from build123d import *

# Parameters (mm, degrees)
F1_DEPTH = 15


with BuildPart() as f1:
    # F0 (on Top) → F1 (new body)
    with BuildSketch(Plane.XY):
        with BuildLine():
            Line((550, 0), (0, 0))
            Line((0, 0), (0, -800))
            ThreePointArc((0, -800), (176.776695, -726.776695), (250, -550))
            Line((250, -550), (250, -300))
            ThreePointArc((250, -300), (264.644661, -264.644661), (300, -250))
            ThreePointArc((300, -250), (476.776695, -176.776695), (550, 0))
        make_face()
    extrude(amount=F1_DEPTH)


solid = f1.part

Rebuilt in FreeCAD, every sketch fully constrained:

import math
import FreeCAD as App
import Part
import Sketcher

doc = App.newDocument("Part")
body = doc.addObject("PartDesign::Body", "Body")

sketch1 = body.newObject("Sketcher::SketchObject", "Sketch")
sketch1.AttachmentSupport = (doc.getObject("XY_Plane"), [""])
sketch1.MapMode = "FlatFace"
sketch1.addGeometry([
    Part.LineSegment(App.Vector(550, 0, 0), App.Vector(0, 0, 0)),
    Part.LineSegment(App.Vector(0, 0, 0), App.Vector(0, -800, 0)),
    Part.ArcOfCircle(Part.Circle(App.Vector(0, -550, 0), App.Vector(0, 0, 1), 250), math.radians(-90), math.radians(0)),
    Part.LineSegment(App.Vector(250, -550, 0), App.Vector(250, -300, 0)),
    Part.ArcOfCircle(Part.Circle(App.Vector(300, -300, 0), App.Vector(0, 0, 1), 50), math.radians(90), math.radians(180)),
    Part.ArcOfCircle(Part.Circle(App.Vector(300, 0, 0), App.Vector(0, 0, 1), 250), math.radians(-90), math.radians(0)),
], False)
sketch1.addConstraint([
    Sketcher.Constraint("Coincident", 0, 2, 1, 1),
    Sketcher.Constraint("Coincident", 1, 2, 2, 1),
    Sketcher.Constraint("Tangent", 2, 2, 3, 1),
    Sketcher.Constraint("Tangent", 3, 2, 4, 2),
    Sketcher.Constraint("Tangent", 4, 1, 5, 1),
    Sketcher.Constraint("Coincident", 5, 2, 0, 1),
    Sketcher.Constraint("Horizontal", 0),
    Sketcher.Constraint("Vertical", 1),
    Sketcher.Constraint("Vertical", 3),
    Sketcher.Constraint("Coincident", 0, 2, -1, 1),
    Sketcher.Constraint("Equal", 2, 5),
    Sketcher.Constraint("PointOnObject", 2, 3, -2),
    Sketcher.Constraint("PointOnObject", 5, 3, -1),
    Sketcher.Constraint("Vertical", 4, 3, 5, 3),
    Sketcher.Constraint("Radius", 2, 250.000001),
    Sketcher.Constraint("Radius", 4, 50.0),
    Sketcher.Constraint("DistanceY", 1, 2, 1, 1, 800.0),
])
pad1 = body.newObject("PartDesign::Pad", "Pad")
pad1.Profile = sketch1
pad1.Length = 15

doc.recompute()
